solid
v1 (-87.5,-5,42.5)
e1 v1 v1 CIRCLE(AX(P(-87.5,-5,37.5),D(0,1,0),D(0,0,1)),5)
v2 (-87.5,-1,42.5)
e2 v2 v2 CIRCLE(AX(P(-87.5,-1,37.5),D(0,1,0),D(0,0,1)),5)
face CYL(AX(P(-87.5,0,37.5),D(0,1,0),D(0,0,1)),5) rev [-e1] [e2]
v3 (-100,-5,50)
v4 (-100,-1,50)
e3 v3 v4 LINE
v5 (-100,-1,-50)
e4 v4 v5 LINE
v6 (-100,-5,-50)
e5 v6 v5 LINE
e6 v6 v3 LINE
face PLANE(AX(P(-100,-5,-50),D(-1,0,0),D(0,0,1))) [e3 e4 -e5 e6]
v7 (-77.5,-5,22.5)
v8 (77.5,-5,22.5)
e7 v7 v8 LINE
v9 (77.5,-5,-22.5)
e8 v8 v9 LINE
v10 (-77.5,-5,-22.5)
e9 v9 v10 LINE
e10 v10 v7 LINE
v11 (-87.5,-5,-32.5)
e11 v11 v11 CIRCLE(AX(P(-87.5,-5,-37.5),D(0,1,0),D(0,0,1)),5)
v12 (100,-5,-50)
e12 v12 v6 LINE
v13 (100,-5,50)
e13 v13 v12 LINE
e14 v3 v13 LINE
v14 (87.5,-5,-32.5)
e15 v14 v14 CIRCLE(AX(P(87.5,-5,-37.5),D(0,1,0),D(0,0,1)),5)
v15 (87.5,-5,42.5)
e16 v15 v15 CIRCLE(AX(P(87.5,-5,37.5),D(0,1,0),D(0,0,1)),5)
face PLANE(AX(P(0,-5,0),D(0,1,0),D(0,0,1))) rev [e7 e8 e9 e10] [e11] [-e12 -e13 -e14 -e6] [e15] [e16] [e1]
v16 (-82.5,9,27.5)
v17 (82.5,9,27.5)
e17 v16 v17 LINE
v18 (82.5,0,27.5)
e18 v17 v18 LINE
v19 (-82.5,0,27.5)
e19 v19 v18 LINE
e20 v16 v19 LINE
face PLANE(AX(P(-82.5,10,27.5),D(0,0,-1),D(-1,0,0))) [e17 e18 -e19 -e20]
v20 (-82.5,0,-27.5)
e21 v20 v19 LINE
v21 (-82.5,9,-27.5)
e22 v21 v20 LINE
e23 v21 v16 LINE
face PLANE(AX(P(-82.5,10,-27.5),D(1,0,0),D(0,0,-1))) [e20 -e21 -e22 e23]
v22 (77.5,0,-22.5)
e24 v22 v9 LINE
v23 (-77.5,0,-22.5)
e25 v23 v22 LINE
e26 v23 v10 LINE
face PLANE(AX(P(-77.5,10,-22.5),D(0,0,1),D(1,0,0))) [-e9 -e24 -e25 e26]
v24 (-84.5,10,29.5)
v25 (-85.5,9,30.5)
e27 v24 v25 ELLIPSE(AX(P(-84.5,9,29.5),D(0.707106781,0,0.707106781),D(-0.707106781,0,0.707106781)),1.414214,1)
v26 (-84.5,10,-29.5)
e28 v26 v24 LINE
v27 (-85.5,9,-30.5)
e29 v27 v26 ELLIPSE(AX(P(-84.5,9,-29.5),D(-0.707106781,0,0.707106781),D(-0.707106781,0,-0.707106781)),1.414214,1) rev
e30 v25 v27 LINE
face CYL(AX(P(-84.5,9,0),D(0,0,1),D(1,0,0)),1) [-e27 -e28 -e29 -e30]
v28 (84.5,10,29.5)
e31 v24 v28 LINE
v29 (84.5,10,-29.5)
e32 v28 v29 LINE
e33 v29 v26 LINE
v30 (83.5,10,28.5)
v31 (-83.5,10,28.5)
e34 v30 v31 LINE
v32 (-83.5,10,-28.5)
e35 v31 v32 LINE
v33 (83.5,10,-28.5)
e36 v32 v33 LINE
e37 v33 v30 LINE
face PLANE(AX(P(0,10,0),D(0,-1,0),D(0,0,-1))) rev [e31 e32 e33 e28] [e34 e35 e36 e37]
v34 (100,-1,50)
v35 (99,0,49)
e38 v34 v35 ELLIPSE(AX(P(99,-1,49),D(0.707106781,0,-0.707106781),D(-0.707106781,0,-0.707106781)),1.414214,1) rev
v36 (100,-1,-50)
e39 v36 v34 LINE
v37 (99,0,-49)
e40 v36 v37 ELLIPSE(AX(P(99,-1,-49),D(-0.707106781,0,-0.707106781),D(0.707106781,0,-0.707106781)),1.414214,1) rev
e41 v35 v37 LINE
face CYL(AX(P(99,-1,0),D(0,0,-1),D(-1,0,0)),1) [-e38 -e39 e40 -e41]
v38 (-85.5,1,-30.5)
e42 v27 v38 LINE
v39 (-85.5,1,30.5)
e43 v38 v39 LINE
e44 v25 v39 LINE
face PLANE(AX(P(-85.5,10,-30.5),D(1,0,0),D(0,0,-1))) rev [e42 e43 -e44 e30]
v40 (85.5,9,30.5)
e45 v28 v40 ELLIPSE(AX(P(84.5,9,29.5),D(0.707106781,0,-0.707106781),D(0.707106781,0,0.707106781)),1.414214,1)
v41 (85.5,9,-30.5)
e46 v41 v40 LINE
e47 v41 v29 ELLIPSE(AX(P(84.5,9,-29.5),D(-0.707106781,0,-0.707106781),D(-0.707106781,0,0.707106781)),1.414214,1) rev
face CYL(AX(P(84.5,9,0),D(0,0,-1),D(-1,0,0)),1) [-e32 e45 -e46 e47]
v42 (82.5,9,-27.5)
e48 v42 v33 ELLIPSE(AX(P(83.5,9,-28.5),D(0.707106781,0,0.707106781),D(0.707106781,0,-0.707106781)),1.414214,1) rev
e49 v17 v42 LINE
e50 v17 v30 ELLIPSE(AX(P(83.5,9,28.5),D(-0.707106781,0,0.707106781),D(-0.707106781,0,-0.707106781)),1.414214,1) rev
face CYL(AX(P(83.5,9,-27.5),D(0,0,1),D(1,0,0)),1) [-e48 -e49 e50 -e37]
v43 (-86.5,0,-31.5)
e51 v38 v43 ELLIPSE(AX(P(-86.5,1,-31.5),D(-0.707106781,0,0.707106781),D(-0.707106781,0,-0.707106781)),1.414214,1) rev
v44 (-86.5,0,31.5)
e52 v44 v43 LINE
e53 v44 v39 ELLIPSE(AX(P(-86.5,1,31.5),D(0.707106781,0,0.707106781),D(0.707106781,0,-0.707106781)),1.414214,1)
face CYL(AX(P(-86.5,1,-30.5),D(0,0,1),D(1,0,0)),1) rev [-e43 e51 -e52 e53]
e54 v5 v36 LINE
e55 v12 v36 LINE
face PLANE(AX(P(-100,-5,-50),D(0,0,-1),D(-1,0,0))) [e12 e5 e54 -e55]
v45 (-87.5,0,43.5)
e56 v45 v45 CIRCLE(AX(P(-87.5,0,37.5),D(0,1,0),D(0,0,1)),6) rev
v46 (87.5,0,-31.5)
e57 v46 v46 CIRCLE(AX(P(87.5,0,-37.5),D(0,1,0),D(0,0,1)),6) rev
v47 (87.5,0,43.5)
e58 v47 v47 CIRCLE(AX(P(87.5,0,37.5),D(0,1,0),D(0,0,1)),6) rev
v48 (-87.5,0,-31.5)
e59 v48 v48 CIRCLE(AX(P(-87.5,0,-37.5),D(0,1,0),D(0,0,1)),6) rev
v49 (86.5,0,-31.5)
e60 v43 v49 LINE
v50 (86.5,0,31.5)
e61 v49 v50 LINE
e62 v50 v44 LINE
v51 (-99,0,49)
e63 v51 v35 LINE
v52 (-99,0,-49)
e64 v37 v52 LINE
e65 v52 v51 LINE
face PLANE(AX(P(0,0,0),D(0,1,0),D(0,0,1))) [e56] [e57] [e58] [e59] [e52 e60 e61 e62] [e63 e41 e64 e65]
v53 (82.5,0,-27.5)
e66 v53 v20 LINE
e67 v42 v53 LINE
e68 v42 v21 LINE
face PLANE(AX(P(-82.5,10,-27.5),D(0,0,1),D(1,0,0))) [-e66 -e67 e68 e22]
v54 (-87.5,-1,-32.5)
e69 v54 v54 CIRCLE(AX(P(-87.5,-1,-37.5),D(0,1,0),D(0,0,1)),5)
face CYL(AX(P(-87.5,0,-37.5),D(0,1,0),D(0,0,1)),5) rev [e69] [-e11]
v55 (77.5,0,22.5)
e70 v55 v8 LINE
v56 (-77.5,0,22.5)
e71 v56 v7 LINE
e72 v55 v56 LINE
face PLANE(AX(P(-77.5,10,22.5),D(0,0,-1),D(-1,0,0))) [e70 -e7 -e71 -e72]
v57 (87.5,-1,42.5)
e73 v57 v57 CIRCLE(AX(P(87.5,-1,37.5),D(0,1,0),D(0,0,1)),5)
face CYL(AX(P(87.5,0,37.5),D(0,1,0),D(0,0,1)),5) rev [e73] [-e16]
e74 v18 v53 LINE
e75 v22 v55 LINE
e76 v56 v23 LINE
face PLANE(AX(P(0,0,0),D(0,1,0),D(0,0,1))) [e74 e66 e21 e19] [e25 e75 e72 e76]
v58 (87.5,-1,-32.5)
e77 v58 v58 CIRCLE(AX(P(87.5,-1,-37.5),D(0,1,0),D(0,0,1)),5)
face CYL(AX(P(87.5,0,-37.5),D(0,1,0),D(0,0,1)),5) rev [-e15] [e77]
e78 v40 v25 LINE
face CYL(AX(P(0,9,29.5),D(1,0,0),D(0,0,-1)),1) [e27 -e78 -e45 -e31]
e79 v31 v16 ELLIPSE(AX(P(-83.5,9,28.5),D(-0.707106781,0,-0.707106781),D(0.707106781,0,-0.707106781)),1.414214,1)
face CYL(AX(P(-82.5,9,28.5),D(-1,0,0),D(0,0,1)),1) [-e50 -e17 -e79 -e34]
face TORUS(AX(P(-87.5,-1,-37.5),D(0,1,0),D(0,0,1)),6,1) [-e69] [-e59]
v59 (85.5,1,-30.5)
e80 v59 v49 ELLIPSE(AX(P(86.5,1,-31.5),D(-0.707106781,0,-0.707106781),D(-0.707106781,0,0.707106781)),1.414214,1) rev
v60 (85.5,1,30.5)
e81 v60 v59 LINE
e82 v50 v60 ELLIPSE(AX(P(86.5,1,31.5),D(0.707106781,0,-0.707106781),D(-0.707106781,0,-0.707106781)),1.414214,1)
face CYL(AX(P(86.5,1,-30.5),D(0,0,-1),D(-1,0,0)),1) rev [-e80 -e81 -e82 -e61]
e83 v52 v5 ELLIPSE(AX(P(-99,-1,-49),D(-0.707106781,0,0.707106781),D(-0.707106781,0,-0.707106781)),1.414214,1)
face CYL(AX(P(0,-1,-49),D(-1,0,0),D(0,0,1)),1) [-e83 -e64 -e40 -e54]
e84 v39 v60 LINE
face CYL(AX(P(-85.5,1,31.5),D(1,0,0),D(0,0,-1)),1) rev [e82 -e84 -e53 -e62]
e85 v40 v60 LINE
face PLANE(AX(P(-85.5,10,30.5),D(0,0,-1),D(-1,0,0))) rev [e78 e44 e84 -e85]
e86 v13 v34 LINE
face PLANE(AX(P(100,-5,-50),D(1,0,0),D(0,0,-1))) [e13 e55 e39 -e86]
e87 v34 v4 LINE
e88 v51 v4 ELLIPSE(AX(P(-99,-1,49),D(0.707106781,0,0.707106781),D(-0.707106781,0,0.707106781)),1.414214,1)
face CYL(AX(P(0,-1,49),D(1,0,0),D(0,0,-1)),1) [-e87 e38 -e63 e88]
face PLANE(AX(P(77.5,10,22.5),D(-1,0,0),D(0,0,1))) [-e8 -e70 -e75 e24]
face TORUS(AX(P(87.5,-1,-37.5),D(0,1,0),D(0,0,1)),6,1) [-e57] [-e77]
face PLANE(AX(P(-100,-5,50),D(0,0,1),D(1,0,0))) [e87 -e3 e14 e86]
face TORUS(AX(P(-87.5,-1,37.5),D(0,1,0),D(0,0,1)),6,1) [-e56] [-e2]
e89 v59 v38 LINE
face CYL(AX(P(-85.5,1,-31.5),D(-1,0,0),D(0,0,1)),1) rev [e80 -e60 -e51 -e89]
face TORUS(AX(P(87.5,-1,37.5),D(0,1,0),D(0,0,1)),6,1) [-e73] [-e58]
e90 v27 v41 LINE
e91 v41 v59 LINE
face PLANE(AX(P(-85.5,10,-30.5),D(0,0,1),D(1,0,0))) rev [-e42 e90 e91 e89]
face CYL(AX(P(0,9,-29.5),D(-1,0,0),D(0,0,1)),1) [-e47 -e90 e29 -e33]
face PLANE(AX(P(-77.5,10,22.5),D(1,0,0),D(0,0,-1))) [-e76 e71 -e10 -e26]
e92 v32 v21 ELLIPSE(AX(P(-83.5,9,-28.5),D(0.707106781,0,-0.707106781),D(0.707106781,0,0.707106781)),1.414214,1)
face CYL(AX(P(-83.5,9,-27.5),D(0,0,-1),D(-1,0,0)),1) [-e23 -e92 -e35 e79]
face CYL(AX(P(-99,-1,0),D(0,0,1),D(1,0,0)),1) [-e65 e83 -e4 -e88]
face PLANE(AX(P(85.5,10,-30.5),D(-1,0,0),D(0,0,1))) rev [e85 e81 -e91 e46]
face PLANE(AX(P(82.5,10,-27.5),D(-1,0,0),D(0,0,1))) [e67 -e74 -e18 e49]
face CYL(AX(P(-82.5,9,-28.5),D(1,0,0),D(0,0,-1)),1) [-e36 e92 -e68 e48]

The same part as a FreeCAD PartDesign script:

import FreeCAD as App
import Part
import Sketcher

V = App.Vector


def edges_at(feature, points):
    """Names of the edges that pass closest to the given points."""
    edges = feature.Shape.Edges
    near = lambda p: min(range(len(edges)), key=lambda i: edges[i].distToShape(Part.Vertex(*p))[0])
    return sorted({f"Edge{near(p) + 1}" for p in points})


def add_polygon(sketch, points):
    """Adds a closed chain of lines whose ends are joined by coincident constraints."""
    first, n = sketch.GeometryCount, len(points)
    for a, b in zip(points, points[1:] + points[:1]):
        sketch.addGeometry(Part.LineSegment(App.Vector(*a, 0), App.Vector(*b, 0)), False)
    for i in range(n):
        sketch.addConstraint(Sketcher.Constraint("Coincident", first + i, 2, first + (i + 1) % n, 1))

doc = App.newDocument("Part")
params = doc.addObject("Spreadsheet::Sheet", "Params")
for row, (alias, value) in enumerate([
    ("sketch1_width", "171 mm"),
    ("sketch1_width2", "165 mm"),
    ("sketch1_height", "61 mm"),
    ("sketch1_height2", "55 mm"),
    ("pad1_length", "10 mm"),
    ("sketch2_width", "200 mm"),
    ("sketch2_height", "100 mm"),
    ("pad2_length", "5 mm"),
    ("fillet_radius", "1 mm"),
    ("sketch3_diameter", "10 mm"),
    ("hole_diameter", "10 mm"),
    ("fillet2_radius", "1 mm"),
    ("sketch4_width", "155 mm"),
    ("sketch4_height", "45 mm"),
], start=1):
    params.set(f"A{row}", alias)
    params.set(f"B{row}", "=" + value)
    params.setAlias(f"B{row}", alias)

body = doc.addObject("PartDesign::Body", "Body")

sketch1 = body.newObject("Sketcher::SketchObject", "Sketch")
sketch1.AttachmentSupport = (doc.getObject("XZ_Plane"), [""])
sketch1.MapMode = "FlatFace"
add_polygon(sketch1, [(-86, -30), (-86, 30), (86, 30), (86, -30)])
add_polygon(sketch1, [(82, 28), (-82, 28), (-82, -28), (82, -28)])
sketch1.addConstraint([
    Sketcher.Constraint("Vertical", 0),
    Sketcher.Constraint("Horizontal", 1),
    Sketcher.Constraint("Vertical", 2),
    Sketcher.Constraint("Horizontal", 3),
    Sketcher.Constraint("Horizontal", 4),
    Sketcher.Constraint("Vertical", 5),
    Sketcher.Constraint("Horizontal", 6),
    Sketcher.Constraint("Vertical", 7),
    Sketcher.Constraint("Symmetric", 0, 2, 2, 2, -1, 1),
    Sketcher.Constraint("Symmetric", 4, 2, 6, 2, -1, 1),
    Sketcher.Constraint("DistanceX", 1, 1, 1, 2, 171.0),
    Sketcher.Constraint("DistanceX", 4, 2, 4, 1, 165.0),
    Sketcher.Constraint("DistanceY", 0, 1, 0, 2, 61.0),
    Sketcher.Constraint("DistanceY", 5, 2, 5, 1, 55.0),
])
sketch1.setExpression("Constraints[18]", "Params.sketch1_width")
sketch1.setExpression("Constraints[19]", "Params.sketch1_width2")
sketch1.setExpression("Constraints[20]", "Params.sketch1_height")
sketch1.setExpression("Constraints[21]", "Params.sketch1_height2")
pad1 = body.newObject("PartDesign::Pad", "Pad")
pad1.Profile = sketch1
pad1.setExpression("Length", "Params.pad1_length")
pad1.Reversed = True

sketch2 = body.newObject("Sketcher::SketchObject", "Sketch001")
sketch2.AttachmentSupport = (doc.getObject("XZ_Plane"), [""])
sketch2.MapMode = "FlatFace"
add_polygon(sketch2, [(-100, -50), (-100, 50), (100, 50), (100, -50)])
sketch2.addConstraint([
    Sketcher.Constraint("Vertical", 0),
    Sketcher.Constraint("Horizontal", 1),
    Sketcher.Constraint("Vertical", 2),
    Sketcher.Constraint("Horizontal", 3),
    Sketcher.Constraint("Symmetric", 0, 2, 2, 2, -1, 1),
    Sketcher.Constraint("DistanceX", 1, 1, 1, 2, 200.0),
    Sketcher.Constraint("DistanceY", 0, 1, 0, 2, 100.0),
])
sketch2.setExpression("Constraints[9]", "Params.sketch2_width")
sketch2.setExpression("Constraints[10]", "Params.sketch2_height")
pad2 = body.newObject("PartDesign::Pad", "Pad001")
pad2.Profile = sketch2
pad2.setExpression("Length", "Params.pad2_length")
doc.recompute()

fillet = body.newObject("PartDesign::Fillet", "Fillet")
fillet.Base = (pad2, edges_at(pad2, [
    (0, 10, 30.5),
    (82.5, 10, 0),
    (85.5, 10, 0),
    (0, 10, -27.5),
    (-82.5, 10, 0),
    (0, 10, 27.5),
    (0, 10, -30.5),
    (-85.5, 10, 0),
]))
fillet.setExpression("Radius", "Params.fillet_radius")

sketch3 = body.newObject("Sketcher::SketchObject", "Sketch002")
sketch3.AttachmentSupport = (doc.getObject("XZ_Plane"), [""])
sketch3.MapMode = "FlatFace"
sketch3.addGeometry([
    Part.Circle(V(-88, -38, 0), V(0, 0, 1), 5),
    Part.Circle(V(88, -38, 0), V(0, 0, 1), 5),
    Part.Circle(V(88, 38, 0), V(0, 0, 1), 5),
    Part.Circle(V(-88, 38, 0), V(0, 0, 1), 5),
], False)
sketch3.addConstraint([
    Sketcher.Constraint("Equal", 0, 1),
    Sketcher.Constraint("Equal", 1, 2),
    Sketcher.Constraint("Equal", 2, 3),
    Sketcher.Constraint("Symmetric", 0, 3, 2, 3, -1, 1),
    Sketcher.Constraint("Symmetric", 1, 3, 3, 3, -1, 1),
    Sketcher.Constraint("Symmetric", 0, 3, 1, 3, -2),
    Sketcher.Constraint("Diameter", 0, 10.0),
    Sketcher.Constraint("DistanceX", 0, 3, 1, 3, 175.0),
    Sketcher.Constraint("DistanceY", 1, 3, 2, 3, 75.0),
])
sketch3.setExpression("Constraints[6]", "Params.sketch3_diameter")
doc.recompute()
hole = body.newObject("PartDesign::Hole", "Hole")
hole.Profile = sketch3
hole.ThreadType = "None"
hole.setExpression("Diameter", "Params.hole_diameter")
hole.DepthType = "ThroughAll"
hole.Reversed = True
doc.recompute()

fillet2 = body.newObject("PartDesign::Fillet", "Fillet001")
fillet2.Base = (hole, edges_at(hole, [
    (100, 0, 0),
    (0, 0, -50),
    (-100, 0, 0),
    (0, 0, 50),
    (85.5, 0, 0),
    (0, 0, 30.5),
    (-85.5, 0, 0),
    (0, 0, -30.5),
    (-87.5, 0, 42.5),
    (87.5, 0, 42.5),
    (87.5, 0, -32.5),
    (-87.5, 0, -32.5),
]))
fillet2.setExpression("Radius", "Params.fillet2_radius")

sketch4 = body.newObject("Sketcher::SketchObject", "Sketch003")
sketch4.AttachmentSupport = (doc.getObject("XZ_Plane"), [""])
sketch4.MapMode = "FlatFace"
add_polygon(sketch4, [(-78, -22), (-78, 22), (78, 22), (78, -22)])
sketch4.addConstraint([
    Sketcher.Constraint("Vertical", 0),
    Sketcher.Constraint("Horizontal", 1),
    Sketcher.Constraint("Vertical", 2),
    Sketcher.Constraint("Horizontal", 3),
    Sketcher.Constraint("Symmetric", 0, 2, 2, 2, -1, 1),
    Sketcher.Constraint("DistanceX", 1, 1, 1, 2, 155.0),
    Sketcher.Constraint("DistanceY", 0, 1, 0, 2, 45.0),
])
sketch4.setExpression("Constraints[9]", "Params.sketch4_width")
sketch4.setExpression("Constraints[10]", "Params.sketch4_height")
pocket1 = body.newObject("PartDesign::Pocket", "Pocket")
pocket1.Profile = sketch4
pocket1.Type = "ThroughAll"
pocket1.Midplane = True

doc.recompute()
